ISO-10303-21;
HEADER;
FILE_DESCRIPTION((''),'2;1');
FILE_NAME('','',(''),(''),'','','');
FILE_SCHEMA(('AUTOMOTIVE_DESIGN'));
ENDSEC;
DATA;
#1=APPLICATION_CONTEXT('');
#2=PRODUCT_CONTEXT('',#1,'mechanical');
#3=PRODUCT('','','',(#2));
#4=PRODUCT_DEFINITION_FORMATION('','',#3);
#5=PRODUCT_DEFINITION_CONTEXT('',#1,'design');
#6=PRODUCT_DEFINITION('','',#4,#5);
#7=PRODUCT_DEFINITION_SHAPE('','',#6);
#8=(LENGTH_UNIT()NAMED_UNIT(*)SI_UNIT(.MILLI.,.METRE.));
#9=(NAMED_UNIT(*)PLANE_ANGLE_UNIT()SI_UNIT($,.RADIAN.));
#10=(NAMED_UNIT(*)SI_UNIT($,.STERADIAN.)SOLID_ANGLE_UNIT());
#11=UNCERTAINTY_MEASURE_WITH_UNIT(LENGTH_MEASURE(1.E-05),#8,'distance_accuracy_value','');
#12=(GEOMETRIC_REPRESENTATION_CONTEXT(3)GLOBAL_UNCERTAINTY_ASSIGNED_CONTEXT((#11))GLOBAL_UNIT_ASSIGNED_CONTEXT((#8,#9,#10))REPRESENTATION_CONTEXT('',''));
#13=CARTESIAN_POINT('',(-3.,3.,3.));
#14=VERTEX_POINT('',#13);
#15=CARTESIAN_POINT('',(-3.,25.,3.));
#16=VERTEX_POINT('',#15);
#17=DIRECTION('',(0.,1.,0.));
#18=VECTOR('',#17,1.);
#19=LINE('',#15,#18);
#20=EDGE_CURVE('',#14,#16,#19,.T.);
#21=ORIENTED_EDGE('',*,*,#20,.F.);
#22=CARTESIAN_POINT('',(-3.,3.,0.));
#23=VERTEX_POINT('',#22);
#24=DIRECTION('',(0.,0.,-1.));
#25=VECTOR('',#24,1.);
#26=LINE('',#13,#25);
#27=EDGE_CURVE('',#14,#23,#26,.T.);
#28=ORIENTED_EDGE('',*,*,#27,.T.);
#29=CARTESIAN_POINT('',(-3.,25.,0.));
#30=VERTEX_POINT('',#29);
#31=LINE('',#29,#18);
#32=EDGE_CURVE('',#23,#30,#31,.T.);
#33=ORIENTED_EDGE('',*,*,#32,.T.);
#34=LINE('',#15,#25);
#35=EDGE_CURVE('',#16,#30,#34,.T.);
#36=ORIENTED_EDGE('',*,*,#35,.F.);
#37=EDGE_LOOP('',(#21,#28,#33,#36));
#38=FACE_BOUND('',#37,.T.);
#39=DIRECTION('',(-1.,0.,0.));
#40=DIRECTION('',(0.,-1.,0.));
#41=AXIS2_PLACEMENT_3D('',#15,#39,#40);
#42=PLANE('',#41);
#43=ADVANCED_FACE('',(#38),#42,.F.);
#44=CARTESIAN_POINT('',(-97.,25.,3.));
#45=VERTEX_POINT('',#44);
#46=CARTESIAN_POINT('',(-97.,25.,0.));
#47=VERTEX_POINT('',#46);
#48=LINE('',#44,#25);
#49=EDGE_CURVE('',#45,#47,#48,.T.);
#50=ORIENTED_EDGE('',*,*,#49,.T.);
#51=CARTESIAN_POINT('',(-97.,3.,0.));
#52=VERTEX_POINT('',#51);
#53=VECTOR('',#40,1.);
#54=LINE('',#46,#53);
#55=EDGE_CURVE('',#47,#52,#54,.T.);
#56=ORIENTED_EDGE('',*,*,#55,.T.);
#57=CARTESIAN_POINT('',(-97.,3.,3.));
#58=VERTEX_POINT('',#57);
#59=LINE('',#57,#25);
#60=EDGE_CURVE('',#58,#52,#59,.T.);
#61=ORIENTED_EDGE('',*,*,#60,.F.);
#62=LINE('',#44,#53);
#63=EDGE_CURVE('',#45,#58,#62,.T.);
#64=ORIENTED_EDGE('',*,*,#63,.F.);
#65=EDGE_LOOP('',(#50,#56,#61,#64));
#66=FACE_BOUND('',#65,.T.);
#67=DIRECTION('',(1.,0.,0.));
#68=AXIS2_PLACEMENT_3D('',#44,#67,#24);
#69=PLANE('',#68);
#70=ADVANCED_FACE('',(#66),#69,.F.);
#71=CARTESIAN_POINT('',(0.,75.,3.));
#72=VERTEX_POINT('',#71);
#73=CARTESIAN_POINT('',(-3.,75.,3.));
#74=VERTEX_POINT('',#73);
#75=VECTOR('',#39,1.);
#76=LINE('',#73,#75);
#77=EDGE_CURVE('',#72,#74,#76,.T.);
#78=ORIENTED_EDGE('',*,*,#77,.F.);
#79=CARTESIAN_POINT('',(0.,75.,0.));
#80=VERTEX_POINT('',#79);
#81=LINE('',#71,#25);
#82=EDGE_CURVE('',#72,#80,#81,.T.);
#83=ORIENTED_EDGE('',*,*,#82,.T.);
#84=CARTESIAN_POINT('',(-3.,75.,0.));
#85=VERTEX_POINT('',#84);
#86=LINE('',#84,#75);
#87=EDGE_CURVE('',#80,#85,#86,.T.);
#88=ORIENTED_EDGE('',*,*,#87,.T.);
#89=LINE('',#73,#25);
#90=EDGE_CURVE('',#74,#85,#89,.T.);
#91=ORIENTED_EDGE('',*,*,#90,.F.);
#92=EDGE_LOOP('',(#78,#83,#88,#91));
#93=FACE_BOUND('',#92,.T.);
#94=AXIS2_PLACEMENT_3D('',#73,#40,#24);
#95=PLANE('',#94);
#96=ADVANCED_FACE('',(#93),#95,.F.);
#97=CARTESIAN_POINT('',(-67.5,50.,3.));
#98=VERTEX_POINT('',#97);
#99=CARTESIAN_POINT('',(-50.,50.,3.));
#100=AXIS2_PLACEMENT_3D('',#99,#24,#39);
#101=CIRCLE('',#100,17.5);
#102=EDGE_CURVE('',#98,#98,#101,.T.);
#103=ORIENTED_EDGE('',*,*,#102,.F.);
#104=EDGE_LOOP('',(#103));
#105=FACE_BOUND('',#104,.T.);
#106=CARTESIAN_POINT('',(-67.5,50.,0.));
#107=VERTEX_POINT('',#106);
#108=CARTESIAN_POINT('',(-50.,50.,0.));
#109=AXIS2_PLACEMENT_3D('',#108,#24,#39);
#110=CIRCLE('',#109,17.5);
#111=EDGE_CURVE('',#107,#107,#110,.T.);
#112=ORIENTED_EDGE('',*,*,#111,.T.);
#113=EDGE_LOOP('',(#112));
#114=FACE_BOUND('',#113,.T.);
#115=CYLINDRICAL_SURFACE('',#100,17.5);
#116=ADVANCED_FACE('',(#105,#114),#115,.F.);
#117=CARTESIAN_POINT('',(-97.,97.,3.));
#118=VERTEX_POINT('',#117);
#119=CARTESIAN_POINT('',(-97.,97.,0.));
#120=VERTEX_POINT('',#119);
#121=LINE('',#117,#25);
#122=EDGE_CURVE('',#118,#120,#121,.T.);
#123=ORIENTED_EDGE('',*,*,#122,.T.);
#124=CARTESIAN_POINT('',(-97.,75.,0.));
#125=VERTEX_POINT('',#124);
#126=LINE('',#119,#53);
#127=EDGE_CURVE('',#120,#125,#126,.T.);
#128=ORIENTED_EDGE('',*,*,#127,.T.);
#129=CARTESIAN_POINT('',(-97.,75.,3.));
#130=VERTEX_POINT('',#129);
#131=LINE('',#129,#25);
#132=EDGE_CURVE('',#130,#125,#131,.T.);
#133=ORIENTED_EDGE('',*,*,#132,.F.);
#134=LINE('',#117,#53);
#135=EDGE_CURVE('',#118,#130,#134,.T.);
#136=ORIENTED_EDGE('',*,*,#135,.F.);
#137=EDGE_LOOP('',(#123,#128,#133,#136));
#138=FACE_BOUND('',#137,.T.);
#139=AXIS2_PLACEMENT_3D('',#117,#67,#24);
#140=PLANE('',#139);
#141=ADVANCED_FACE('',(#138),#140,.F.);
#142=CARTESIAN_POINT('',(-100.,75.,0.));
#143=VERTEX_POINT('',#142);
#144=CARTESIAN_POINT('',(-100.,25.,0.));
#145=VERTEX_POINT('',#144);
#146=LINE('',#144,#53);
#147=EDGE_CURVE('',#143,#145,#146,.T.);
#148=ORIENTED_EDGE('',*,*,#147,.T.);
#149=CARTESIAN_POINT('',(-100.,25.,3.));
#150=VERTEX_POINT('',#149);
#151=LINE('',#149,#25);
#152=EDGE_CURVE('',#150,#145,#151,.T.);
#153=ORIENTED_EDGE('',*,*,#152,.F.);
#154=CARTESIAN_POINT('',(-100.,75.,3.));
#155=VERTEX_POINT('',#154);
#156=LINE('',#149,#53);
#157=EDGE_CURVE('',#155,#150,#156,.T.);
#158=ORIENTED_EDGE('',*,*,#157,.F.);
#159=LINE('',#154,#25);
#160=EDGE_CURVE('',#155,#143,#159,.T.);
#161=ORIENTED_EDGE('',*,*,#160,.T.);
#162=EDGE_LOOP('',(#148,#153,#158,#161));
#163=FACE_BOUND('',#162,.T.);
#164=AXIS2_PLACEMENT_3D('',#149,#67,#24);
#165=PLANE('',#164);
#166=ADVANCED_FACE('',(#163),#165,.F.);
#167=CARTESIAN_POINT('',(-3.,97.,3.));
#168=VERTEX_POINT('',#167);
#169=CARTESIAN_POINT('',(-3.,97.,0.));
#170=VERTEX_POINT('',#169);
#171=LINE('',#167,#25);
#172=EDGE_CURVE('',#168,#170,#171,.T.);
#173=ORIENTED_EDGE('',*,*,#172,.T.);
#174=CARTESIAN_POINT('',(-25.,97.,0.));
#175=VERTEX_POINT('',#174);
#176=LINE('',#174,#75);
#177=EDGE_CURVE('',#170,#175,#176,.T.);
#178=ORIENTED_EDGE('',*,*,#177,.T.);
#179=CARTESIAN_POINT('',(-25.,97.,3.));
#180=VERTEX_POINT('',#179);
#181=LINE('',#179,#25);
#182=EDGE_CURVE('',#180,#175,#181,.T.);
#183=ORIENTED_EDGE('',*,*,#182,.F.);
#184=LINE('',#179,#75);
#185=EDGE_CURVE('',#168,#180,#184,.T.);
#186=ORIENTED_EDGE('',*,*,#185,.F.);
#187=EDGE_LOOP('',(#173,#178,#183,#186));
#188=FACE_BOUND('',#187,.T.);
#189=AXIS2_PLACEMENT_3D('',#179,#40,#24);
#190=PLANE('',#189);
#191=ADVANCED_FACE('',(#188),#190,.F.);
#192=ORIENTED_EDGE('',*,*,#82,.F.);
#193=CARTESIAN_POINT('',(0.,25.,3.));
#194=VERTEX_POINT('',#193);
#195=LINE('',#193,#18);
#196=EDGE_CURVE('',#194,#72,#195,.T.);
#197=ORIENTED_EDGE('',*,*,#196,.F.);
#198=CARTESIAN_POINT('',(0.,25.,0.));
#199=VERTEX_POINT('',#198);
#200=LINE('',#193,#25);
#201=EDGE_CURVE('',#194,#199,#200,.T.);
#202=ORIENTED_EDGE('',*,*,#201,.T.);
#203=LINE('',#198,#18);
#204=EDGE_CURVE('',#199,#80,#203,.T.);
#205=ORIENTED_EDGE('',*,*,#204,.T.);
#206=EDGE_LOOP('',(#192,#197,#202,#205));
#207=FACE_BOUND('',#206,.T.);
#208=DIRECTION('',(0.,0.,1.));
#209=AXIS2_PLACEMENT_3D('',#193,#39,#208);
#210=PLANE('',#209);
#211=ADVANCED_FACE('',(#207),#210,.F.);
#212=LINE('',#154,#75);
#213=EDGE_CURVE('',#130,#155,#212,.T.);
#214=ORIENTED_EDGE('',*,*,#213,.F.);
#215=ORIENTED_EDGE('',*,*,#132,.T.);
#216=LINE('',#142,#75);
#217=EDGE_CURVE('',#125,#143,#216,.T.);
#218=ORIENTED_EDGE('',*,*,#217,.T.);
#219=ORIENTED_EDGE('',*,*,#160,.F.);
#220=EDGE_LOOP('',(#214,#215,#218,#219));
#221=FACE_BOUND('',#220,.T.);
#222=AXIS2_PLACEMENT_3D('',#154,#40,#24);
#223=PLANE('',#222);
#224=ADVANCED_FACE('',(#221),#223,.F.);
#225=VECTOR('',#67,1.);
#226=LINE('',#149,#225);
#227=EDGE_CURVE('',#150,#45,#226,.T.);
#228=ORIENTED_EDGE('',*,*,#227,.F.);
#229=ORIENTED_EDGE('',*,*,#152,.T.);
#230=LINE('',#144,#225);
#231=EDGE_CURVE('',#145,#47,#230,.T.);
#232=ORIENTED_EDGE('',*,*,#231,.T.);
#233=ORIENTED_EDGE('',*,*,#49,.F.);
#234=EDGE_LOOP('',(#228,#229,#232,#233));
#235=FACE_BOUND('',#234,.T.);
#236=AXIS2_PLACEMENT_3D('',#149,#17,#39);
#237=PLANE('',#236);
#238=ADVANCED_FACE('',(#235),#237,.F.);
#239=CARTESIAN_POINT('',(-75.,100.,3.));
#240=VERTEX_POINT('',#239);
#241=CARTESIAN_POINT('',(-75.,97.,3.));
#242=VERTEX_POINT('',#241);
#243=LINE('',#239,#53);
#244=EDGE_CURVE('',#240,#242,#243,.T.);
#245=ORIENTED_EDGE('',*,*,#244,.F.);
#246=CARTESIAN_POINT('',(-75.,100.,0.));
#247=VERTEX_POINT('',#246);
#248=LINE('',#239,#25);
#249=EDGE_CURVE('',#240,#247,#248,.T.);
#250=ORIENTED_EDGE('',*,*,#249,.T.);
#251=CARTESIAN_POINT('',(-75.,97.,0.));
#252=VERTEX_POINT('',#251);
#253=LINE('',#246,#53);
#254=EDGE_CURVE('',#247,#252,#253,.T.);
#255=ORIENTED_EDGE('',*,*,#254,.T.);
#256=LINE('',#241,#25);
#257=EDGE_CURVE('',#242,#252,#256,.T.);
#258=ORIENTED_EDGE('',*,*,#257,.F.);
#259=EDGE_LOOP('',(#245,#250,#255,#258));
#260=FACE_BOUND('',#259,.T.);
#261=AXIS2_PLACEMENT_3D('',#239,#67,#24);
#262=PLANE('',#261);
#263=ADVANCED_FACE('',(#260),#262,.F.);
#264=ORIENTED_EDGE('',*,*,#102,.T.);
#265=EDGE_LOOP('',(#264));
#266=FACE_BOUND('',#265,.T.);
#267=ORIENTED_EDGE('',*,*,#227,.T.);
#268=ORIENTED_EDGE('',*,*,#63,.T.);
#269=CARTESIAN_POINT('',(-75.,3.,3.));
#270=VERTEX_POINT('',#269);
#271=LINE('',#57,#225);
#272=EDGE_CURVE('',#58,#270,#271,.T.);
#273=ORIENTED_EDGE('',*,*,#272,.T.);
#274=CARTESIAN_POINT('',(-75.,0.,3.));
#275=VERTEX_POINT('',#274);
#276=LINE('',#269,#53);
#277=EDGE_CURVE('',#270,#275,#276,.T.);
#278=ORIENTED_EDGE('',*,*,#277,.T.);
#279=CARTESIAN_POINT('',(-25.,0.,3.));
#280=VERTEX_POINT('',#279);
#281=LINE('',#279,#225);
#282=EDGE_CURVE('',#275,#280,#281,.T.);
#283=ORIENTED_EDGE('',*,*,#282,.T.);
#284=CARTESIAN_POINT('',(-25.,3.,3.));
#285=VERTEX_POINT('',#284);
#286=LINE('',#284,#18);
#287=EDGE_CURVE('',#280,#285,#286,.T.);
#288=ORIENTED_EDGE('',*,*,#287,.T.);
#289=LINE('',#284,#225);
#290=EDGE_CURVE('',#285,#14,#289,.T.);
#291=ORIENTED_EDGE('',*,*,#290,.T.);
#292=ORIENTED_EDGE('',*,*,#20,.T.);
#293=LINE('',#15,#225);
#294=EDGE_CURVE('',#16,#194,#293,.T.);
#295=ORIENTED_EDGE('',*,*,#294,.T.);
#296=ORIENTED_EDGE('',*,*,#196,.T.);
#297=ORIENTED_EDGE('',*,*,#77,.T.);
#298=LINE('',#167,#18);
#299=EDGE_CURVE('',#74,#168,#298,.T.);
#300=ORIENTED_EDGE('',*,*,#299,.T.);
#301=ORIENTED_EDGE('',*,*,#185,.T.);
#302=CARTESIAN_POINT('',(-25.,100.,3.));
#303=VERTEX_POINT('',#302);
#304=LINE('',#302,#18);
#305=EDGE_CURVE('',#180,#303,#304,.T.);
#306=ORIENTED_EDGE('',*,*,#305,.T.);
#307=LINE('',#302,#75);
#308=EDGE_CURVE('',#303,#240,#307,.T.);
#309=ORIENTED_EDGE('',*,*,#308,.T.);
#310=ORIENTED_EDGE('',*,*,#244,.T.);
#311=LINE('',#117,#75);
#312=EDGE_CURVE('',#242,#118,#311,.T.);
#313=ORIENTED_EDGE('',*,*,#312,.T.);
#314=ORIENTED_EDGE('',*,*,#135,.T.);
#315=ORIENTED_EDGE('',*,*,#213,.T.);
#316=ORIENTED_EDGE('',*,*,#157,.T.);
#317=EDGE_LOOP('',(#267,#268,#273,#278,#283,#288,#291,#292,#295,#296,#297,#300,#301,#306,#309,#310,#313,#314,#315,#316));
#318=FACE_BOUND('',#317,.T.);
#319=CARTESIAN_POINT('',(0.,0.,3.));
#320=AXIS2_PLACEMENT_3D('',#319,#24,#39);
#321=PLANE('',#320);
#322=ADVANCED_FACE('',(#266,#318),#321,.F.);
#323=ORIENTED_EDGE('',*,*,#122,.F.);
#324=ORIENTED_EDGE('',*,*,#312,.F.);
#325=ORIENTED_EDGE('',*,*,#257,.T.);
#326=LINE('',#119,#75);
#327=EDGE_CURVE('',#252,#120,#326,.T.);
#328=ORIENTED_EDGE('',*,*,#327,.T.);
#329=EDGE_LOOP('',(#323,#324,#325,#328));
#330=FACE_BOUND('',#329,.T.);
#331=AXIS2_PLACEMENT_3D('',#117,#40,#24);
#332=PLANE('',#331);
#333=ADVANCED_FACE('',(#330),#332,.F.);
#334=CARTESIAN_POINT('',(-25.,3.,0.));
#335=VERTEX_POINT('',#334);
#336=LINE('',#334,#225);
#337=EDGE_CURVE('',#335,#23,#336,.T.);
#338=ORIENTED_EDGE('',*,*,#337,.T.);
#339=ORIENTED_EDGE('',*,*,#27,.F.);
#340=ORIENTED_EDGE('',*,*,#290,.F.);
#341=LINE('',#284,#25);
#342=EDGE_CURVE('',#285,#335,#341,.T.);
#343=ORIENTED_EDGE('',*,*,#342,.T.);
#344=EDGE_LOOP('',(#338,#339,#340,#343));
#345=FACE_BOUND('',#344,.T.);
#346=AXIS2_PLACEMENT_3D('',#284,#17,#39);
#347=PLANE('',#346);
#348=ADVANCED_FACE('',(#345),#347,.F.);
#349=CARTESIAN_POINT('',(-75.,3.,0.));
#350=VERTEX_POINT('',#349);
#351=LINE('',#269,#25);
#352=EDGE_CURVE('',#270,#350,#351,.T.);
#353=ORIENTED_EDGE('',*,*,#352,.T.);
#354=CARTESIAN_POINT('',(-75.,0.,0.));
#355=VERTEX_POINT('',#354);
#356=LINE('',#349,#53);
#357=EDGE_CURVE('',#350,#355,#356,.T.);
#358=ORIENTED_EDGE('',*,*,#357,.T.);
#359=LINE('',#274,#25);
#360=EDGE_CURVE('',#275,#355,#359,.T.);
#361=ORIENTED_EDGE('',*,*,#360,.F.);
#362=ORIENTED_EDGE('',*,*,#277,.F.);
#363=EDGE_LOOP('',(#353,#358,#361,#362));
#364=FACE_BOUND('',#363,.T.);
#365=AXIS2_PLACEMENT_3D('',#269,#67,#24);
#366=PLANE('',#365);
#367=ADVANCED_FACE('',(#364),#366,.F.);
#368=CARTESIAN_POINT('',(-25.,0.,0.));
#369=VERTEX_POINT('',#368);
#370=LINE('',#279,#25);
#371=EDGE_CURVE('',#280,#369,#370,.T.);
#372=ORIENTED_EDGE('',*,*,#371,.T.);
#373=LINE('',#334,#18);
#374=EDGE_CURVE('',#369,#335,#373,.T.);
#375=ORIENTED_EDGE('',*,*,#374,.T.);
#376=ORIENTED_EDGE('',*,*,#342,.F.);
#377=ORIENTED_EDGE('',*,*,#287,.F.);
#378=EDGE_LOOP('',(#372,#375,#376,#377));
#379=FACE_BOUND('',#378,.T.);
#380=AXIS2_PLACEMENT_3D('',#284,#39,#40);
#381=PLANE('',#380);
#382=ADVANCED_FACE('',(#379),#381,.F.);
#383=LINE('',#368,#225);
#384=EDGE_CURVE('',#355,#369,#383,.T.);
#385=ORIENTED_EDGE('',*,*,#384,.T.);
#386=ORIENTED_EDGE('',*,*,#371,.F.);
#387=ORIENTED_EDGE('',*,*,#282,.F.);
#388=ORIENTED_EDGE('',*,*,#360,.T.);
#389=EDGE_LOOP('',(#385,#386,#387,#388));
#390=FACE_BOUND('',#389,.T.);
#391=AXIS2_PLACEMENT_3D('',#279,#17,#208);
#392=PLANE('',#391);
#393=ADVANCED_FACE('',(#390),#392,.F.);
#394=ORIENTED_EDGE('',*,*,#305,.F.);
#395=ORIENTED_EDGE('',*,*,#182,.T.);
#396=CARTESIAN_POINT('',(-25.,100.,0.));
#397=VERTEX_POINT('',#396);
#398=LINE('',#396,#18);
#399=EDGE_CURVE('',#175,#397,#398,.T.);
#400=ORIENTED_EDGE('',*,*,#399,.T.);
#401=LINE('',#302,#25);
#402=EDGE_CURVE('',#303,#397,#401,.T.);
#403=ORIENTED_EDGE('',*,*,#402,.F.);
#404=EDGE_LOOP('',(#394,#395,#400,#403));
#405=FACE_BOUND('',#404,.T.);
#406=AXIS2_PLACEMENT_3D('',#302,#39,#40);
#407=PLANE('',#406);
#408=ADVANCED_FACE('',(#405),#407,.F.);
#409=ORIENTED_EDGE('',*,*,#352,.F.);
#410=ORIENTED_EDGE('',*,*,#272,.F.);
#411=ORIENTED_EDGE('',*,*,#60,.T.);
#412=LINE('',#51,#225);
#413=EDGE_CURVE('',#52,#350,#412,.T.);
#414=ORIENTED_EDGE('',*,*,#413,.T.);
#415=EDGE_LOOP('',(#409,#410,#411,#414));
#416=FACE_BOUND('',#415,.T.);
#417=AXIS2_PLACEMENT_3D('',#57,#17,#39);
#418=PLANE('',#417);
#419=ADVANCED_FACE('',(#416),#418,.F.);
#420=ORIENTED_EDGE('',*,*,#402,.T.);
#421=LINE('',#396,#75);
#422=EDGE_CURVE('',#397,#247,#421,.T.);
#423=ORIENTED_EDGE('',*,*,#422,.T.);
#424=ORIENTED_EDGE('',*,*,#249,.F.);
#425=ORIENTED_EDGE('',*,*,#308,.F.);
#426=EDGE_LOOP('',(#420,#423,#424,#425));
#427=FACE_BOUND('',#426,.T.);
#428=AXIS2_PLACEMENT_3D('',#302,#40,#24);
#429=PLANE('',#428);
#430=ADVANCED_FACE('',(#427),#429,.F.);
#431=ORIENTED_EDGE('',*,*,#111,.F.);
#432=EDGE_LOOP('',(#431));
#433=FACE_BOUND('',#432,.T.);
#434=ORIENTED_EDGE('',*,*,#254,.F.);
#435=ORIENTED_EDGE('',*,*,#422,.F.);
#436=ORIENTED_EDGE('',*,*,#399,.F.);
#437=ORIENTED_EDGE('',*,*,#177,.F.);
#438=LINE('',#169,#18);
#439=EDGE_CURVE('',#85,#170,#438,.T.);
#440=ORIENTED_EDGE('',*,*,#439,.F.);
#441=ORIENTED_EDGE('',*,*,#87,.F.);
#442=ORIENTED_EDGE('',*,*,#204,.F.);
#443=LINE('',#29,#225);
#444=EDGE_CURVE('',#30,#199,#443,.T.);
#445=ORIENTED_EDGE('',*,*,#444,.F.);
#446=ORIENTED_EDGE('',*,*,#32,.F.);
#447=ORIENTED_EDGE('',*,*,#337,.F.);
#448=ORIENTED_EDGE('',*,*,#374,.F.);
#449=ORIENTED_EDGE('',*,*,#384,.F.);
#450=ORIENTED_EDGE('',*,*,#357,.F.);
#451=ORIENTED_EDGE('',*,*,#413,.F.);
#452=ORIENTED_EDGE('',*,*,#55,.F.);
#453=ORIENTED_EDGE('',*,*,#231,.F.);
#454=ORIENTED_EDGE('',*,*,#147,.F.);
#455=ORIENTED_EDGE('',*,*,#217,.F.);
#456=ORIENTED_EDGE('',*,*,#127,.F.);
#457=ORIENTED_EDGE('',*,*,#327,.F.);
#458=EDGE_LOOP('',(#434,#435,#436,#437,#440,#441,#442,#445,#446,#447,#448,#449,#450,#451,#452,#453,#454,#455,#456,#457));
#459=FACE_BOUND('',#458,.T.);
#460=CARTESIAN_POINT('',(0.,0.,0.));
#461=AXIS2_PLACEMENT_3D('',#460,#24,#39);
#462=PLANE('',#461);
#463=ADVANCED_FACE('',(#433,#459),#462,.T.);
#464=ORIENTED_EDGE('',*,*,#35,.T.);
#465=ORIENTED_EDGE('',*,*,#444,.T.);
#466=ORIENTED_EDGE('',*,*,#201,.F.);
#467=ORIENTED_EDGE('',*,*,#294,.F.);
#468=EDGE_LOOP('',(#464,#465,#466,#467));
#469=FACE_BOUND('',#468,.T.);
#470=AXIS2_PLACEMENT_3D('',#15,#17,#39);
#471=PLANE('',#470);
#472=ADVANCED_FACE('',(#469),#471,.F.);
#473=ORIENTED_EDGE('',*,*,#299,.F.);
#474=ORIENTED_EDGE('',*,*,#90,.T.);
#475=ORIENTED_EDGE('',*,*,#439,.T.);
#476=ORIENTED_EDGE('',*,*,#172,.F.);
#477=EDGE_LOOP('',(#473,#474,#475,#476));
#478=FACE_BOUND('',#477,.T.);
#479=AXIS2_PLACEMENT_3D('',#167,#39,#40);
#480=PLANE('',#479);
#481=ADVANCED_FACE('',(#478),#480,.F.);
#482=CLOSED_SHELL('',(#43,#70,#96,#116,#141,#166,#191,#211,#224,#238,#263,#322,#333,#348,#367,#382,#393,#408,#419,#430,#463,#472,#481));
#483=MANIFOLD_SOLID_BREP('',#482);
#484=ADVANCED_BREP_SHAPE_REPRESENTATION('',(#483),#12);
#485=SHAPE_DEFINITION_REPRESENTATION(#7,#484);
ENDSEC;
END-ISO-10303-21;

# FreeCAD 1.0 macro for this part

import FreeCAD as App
import Part
import Sketcher

V = App.Vector
Q = App.Units.Quantity

doc = App.newDocument("Part")
body = doc.addObject("PartDesign::Body", "Body")

sketch1 = body.newObject("Sketcher::SketchObject", "Sketch")
sketch1.AttachmentSupport = (doc.getObject("XY_Plane"), [""])
sketch1.MapMode = "FlatFace"
sketch1.addGeometry([
    Part.LineSegment(V(-75, 100, 0), V(-75, 97, 0)),
    Part.LineSegment(V(-75, 97, 0), V(-97, 97, 0)),
    Part.LineSegment(V(-97, 97, 0), V(-97, 75, 0)),
    Part.LineSegment(V(-97, 75, 0), V(-100, 75, 0)),
    Part.LineSegment(V(-100, 75, 0), V(-100, 25, 0)),
    Part.LineSegment(V(-100, 25, 0), V(-97, 25, 0)),
    Part.LineSegment(V(-97, 25, 0), V(-97, 3, 0)),
    Part.LineSegment(V(-97, 3, 0), V(-75, 3, 0)),
    Part.LineSegment(V(-75, 3, 0), V(-75, 0, 0)),
    Part.LineSegment(V(-75, 0, 0), V(-25, 0, 0)),
    Part.LineSegment(V(-25, 0, 0), V(-25, 3, 0)),
    Part.LineSegment(V(-25, 3, 0), V(-3, 3, 0)),
    Part.LineSegment(V(-3, 3, 0), V(-3, 25, 0)),
    Part.LineSegment(V(-3, 25, 0), V(0, 25, 0)),
    Part.LineSegment(V(0, 25, 0), V(0, 75, 0)),
    Part.LineSegment(V(0, 75, 0), V(-3, 75, 0)),
    Part.LineSegment(V(-3, 75, 0), V(-3, 97, 0)),
    Part.LineSegment(V(-3, 97, 0), V(-25, 97, 0)),
    Part.LineSegment(V(-25, 97, 0), V(-25, 100, 0)),
    Part.LineSegment(V(-25, 100, 0), V(-75, 100, 0)),
], False)
sketch1.addConstraint([
    Sketcher.Constraint("Coincident", 0, 2, 1, 1),
    Sketcher.Constraint("Coincident", 1, 2, 2, 1),
    Sketcher.Constraint("Coincident", 2, 2, 3, 1),
    Sketcher.Constraint("Coincident", 3, 2, 4, 1),
    Sketcher.Constraint("Coincident", 4, 2, 5, 1),
    Sketcher.Constraint("Coincident", 5, 2, 6, 1),
    Sketcher.Constraint("Coincident", 6, 2, 7, 1),
    Sketcher.Constraint("Coincident", 7, 2, 8, 1),
    Sketcher.Constraint("Coincident", 8, 2, 9, 1),
    Sketcher.Constraint("Coincident", 9, 2, 10, 1),
    Sketcher.Constraint("Coincident", 10, 2, 11, 1),
    Sketcher.Constraint("Coincident", 11, 2, 12, 1),
    Sketcher.Constraint("Coincident", 12, 2, 13, 1),
    Sketcher.Constraint("Coincident", 13, 2, 14, 1),
    Sketcher.Constraint("Coincident", 14, 2, 15, 1),
    Sketcher.Constraint("Coincident", 15, 2, 16, 1),
    Sketcher.Constraint("Coincident", 16, 2, 17, 1),
    Sketcher.Constraint("Coincident", 17, 2, 18, 1),
    Sketcher.Constraint("Coincident", 18, 2, 19, 1),
    Sketcher.Constraint("Coincident", 19, 2, 0, 1),
    Sketcher.Constraint("Vertical", 0),
    Sketcher.Constraint("Horizontal", 1),
    Sketcher.Constraint("Vertical", 2),
    Sketcher.Constraint("Horizontal", 3),
    Sketcher.Constraint("Vertical", 4),
    Sketcher.Constraint("Horizontal", 5),
    Sketcher.Constraint("Vertical", 6),
    Sketcher.Constraint("Horizontal", 7),
    Sketcher.Constraint("Vertical", 8),
    Sketcher.Constraint("Horizontal", 9),
    Sketcher.Constraint("Vertical", 10),
    Sketcher.Constraint("Horizontal", 11),
    Sketcher.Constraint("Vertical", 12),
    Sketcher.Constraint("Horizontal", 13),
    Sketcher.Constraint("Vertical", 14),
    Sketcher.Constraint("Horizontal", 15),
    Sketcher.Constraint("Vertical", 16),
    Sketcher.Constraint("Horizontal", 17),
    Sketcher.Constraint("Vertical", 18),
    Sketcher.Constraint("Horizontal", 19),
    Sketcher.Constraint("PointOnObject", 8, 2, -1),
    Sketcher.Constraint("PointOnObject", 13, 2, -2),
    Sketcher.Constraint("Horizontal", 7, 2, 10, 2),
    Sketcher.Constraint("Horizontal", 5, 2, 12, 2),
    Sketcher.Constraint("Horizontal", 3, 2, 14, 2),
    Sketcher.Constraint("Horizontal", 1, 2, 16, 2),
    Sketcher.Constraint("Vertical", 2, 2, 5, 2),
    Sketcher.Constraint("Vertical", 0, 2, 7, 2),
    Sketcher.Constraint("Vertical", 12, 2, 15, 2),
    Sketcher.Constraint("Vertical", 10, 2, 17, 2),
    Sketcher.Constraint("Equal", 7, 11),
    Sketcher.Constraint("Equal", 5, 13),
    Sketcher.Constraint("Equal", 15, 0),
    Sketcher.Constraint("Equal", 17, 2),
    Sketcher.Constraint("Equal", 19, 4),
    Sketcher.Constraint("Equal", 2, 6),
    Sketcher.Constraint("Equal", 0, 8),
    Sketcher.Constraint("DistanceX", 1, 2, 1, 1, Q("22 mm")),
    Sketcher.Constraint("DistanceX", 3, 2, 3, 1, Q("3 mm")),
    Sketcher.Constraint("DistanceX", 9, 1, 9, 2, Q("50 mm")),
])
pad1 = body.newObject("PartDesign::Pad", "Pad")
pad1.Profile = sketch1
pad1.Length = 3

sketch2 = body.newObject("Sketcher::SketchObject", "Sketch001")
sketch2.AttachmentSupport = (doc.getObject("XY_Plane"), [""])
sketch2.MapMode = "FlatFace"
sketch2.addGeometry(Part.Circle(V(-50, 50, 0), V(0, 0, 1), 18), False)
sketch2.addConstraint([
    Sketcher.Constraint("Diameter", 0, Q("35 mm")),
    Sketcher.Constraint("DistanceX", 0, 3, -1, 1, Q("50 mm")),
    Sketcher.Constraint("DistanceY", -1, 1, 0, 3, Q("50 mm")),
])
pocket1 = body.newObject("PartDesign::Pocket", "Pocket")
pocket1.Profile = sketch2
pocket1.Type = "ThroughAll"
pocket1.Reversed = True

doc.recompute()
